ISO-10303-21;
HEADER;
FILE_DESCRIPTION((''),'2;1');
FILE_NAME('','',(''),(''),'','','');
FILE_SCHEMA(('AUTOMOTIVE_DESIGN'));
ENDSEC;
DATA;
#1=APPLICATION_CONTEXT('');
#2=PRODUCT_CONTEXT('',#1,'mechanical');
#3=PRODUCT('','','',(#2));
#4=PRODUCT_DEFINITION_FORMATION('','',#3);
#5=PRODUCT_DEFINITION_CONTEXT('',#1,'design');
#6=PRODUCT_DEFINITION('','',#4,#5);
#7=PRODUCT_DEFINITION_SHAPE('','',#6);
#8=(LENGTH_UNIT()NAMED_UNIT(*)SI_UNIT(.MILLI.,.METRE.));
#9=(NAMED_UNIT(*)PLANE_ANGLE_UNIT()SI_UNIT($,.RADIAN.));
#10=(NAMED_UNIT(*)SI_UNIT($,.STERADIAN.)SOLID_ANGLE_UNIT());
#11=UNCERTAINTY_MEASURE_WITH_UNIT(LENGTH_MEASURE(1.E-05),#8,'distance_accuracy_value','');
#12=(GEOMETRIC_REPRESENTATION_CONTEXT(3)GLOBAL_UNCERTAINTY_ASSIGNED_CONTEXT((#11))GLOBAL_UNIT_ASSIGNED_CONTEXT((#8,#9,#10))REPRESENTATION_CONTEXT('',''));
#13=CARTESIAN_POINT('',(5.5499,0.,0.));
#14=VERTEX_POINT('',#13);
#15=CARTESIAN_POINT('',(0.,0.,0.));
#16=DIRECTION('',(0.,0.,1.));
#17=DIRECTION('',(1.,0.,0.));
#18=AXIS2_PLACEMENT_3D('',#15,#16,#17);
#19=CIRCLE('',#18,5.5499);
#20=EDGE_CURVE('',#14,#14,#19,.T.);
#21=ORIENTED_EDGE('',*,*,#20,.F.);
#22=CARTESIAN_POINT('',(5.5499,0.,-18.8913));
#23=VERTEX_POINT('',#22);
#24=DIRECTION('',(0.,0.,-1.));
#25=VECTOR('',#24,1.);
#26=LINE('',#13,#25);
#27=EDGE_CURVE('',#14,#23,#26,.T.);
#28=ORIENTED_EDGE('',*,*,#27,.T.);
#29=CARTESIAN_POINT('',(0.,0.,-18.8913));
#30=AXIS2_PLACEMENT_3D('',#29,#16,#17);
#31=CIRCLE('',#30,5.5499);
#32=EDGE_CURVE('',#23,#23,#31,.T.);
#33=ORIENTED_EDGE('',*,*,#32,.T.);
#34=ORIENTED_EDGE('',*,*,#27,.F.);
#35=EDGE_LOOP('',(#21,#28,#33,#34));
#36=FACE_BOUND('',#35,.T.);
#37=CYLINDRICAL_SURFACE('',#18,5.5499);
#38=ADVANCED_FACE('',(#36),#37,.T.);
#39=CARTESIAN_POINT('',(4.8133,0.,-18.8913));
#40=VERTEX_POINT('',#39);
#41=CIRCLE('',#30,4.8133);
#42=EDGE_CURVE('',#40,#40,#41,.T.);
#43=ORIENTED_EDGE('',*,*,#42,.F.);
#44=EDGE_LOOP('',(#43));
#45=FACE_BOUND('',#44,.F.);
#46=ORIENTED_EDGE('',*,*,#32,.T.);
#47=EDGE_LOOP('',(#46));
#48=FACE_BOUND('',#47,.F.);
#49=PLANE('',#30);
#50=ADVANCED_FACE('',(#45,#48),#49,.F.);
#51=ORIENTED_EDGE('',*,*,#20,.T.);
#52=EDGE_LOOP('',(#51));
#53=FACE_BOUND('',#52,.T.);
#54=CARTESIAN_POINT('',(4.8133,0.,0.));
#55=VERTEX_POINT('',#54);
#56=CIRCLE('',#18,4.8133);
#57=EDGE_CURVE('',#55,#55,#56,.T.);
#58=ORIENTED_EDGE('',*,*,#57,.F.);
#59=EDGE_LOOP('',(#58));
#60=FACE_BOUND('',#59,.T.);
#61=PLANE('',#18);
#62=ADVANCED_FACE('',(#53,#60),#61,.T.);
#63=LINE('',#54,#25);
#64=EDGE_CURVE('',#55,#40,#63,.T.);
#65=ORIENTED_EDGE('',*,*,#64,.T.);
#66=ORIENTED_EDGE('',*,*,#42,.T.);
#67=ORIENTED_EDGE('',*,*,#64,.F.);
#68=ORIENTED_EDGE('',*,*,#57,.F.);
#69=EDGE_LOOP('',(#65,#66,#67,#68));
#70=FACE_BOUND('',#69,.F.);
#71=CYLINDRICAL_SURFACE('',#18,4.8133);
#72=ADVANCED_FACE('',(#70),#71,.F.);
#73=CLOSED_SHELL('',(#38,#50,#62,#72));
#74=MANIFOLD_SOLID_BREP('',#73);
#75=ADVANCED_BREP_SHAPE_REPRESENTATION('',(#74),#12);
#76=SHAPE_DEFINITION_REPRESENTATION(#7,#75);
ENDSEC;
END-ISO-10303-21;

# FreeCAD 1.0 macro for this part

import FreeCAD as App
import Part
import Sketcher
from FreeCAD import Vector
Q = App.Units.Quantity

doc = App.newDocument("Part")
body = doc.addObject("PartDesign::Body", "Body")

# Sketch on XY plane
sketch1 = doc.addObject("Sketcher::SketchObject", "Sketch")
body.addObject(sketch1)
sketch1.AttachmentSupport = (doc.XY_Plane, [""])
sketch1.MapMode = "FlatFace"
sketch1.addGeometry([
    Part.Circle(Vector(0, 0, 0), Vector(0, 0, 1), 5.5),
    Part.Circle(Vector(0, 0, 0), Vector(0, 0, 1), 4.8),
], False)
sketch1.addConstraint([
    Sketcher.Constraint("Coincident", 0, 3, -1, 1),
    Sketcher.Constraint("Coincident", 1, 3, -1, 1),
    Sketcher.Constraint("Diameter", 0, Q("0.437 in")),
    Sketcher.Constraint("Diameter", 1, Q("0.379 in")),
])
pad1 = doc.addObject("PartDesign::Pad", "Pad")
body.addObject(pad1)
pad1.Profile = sketch1
pad1.Length = 18.8913
pad1.Reversed = True

doc.recompute()
